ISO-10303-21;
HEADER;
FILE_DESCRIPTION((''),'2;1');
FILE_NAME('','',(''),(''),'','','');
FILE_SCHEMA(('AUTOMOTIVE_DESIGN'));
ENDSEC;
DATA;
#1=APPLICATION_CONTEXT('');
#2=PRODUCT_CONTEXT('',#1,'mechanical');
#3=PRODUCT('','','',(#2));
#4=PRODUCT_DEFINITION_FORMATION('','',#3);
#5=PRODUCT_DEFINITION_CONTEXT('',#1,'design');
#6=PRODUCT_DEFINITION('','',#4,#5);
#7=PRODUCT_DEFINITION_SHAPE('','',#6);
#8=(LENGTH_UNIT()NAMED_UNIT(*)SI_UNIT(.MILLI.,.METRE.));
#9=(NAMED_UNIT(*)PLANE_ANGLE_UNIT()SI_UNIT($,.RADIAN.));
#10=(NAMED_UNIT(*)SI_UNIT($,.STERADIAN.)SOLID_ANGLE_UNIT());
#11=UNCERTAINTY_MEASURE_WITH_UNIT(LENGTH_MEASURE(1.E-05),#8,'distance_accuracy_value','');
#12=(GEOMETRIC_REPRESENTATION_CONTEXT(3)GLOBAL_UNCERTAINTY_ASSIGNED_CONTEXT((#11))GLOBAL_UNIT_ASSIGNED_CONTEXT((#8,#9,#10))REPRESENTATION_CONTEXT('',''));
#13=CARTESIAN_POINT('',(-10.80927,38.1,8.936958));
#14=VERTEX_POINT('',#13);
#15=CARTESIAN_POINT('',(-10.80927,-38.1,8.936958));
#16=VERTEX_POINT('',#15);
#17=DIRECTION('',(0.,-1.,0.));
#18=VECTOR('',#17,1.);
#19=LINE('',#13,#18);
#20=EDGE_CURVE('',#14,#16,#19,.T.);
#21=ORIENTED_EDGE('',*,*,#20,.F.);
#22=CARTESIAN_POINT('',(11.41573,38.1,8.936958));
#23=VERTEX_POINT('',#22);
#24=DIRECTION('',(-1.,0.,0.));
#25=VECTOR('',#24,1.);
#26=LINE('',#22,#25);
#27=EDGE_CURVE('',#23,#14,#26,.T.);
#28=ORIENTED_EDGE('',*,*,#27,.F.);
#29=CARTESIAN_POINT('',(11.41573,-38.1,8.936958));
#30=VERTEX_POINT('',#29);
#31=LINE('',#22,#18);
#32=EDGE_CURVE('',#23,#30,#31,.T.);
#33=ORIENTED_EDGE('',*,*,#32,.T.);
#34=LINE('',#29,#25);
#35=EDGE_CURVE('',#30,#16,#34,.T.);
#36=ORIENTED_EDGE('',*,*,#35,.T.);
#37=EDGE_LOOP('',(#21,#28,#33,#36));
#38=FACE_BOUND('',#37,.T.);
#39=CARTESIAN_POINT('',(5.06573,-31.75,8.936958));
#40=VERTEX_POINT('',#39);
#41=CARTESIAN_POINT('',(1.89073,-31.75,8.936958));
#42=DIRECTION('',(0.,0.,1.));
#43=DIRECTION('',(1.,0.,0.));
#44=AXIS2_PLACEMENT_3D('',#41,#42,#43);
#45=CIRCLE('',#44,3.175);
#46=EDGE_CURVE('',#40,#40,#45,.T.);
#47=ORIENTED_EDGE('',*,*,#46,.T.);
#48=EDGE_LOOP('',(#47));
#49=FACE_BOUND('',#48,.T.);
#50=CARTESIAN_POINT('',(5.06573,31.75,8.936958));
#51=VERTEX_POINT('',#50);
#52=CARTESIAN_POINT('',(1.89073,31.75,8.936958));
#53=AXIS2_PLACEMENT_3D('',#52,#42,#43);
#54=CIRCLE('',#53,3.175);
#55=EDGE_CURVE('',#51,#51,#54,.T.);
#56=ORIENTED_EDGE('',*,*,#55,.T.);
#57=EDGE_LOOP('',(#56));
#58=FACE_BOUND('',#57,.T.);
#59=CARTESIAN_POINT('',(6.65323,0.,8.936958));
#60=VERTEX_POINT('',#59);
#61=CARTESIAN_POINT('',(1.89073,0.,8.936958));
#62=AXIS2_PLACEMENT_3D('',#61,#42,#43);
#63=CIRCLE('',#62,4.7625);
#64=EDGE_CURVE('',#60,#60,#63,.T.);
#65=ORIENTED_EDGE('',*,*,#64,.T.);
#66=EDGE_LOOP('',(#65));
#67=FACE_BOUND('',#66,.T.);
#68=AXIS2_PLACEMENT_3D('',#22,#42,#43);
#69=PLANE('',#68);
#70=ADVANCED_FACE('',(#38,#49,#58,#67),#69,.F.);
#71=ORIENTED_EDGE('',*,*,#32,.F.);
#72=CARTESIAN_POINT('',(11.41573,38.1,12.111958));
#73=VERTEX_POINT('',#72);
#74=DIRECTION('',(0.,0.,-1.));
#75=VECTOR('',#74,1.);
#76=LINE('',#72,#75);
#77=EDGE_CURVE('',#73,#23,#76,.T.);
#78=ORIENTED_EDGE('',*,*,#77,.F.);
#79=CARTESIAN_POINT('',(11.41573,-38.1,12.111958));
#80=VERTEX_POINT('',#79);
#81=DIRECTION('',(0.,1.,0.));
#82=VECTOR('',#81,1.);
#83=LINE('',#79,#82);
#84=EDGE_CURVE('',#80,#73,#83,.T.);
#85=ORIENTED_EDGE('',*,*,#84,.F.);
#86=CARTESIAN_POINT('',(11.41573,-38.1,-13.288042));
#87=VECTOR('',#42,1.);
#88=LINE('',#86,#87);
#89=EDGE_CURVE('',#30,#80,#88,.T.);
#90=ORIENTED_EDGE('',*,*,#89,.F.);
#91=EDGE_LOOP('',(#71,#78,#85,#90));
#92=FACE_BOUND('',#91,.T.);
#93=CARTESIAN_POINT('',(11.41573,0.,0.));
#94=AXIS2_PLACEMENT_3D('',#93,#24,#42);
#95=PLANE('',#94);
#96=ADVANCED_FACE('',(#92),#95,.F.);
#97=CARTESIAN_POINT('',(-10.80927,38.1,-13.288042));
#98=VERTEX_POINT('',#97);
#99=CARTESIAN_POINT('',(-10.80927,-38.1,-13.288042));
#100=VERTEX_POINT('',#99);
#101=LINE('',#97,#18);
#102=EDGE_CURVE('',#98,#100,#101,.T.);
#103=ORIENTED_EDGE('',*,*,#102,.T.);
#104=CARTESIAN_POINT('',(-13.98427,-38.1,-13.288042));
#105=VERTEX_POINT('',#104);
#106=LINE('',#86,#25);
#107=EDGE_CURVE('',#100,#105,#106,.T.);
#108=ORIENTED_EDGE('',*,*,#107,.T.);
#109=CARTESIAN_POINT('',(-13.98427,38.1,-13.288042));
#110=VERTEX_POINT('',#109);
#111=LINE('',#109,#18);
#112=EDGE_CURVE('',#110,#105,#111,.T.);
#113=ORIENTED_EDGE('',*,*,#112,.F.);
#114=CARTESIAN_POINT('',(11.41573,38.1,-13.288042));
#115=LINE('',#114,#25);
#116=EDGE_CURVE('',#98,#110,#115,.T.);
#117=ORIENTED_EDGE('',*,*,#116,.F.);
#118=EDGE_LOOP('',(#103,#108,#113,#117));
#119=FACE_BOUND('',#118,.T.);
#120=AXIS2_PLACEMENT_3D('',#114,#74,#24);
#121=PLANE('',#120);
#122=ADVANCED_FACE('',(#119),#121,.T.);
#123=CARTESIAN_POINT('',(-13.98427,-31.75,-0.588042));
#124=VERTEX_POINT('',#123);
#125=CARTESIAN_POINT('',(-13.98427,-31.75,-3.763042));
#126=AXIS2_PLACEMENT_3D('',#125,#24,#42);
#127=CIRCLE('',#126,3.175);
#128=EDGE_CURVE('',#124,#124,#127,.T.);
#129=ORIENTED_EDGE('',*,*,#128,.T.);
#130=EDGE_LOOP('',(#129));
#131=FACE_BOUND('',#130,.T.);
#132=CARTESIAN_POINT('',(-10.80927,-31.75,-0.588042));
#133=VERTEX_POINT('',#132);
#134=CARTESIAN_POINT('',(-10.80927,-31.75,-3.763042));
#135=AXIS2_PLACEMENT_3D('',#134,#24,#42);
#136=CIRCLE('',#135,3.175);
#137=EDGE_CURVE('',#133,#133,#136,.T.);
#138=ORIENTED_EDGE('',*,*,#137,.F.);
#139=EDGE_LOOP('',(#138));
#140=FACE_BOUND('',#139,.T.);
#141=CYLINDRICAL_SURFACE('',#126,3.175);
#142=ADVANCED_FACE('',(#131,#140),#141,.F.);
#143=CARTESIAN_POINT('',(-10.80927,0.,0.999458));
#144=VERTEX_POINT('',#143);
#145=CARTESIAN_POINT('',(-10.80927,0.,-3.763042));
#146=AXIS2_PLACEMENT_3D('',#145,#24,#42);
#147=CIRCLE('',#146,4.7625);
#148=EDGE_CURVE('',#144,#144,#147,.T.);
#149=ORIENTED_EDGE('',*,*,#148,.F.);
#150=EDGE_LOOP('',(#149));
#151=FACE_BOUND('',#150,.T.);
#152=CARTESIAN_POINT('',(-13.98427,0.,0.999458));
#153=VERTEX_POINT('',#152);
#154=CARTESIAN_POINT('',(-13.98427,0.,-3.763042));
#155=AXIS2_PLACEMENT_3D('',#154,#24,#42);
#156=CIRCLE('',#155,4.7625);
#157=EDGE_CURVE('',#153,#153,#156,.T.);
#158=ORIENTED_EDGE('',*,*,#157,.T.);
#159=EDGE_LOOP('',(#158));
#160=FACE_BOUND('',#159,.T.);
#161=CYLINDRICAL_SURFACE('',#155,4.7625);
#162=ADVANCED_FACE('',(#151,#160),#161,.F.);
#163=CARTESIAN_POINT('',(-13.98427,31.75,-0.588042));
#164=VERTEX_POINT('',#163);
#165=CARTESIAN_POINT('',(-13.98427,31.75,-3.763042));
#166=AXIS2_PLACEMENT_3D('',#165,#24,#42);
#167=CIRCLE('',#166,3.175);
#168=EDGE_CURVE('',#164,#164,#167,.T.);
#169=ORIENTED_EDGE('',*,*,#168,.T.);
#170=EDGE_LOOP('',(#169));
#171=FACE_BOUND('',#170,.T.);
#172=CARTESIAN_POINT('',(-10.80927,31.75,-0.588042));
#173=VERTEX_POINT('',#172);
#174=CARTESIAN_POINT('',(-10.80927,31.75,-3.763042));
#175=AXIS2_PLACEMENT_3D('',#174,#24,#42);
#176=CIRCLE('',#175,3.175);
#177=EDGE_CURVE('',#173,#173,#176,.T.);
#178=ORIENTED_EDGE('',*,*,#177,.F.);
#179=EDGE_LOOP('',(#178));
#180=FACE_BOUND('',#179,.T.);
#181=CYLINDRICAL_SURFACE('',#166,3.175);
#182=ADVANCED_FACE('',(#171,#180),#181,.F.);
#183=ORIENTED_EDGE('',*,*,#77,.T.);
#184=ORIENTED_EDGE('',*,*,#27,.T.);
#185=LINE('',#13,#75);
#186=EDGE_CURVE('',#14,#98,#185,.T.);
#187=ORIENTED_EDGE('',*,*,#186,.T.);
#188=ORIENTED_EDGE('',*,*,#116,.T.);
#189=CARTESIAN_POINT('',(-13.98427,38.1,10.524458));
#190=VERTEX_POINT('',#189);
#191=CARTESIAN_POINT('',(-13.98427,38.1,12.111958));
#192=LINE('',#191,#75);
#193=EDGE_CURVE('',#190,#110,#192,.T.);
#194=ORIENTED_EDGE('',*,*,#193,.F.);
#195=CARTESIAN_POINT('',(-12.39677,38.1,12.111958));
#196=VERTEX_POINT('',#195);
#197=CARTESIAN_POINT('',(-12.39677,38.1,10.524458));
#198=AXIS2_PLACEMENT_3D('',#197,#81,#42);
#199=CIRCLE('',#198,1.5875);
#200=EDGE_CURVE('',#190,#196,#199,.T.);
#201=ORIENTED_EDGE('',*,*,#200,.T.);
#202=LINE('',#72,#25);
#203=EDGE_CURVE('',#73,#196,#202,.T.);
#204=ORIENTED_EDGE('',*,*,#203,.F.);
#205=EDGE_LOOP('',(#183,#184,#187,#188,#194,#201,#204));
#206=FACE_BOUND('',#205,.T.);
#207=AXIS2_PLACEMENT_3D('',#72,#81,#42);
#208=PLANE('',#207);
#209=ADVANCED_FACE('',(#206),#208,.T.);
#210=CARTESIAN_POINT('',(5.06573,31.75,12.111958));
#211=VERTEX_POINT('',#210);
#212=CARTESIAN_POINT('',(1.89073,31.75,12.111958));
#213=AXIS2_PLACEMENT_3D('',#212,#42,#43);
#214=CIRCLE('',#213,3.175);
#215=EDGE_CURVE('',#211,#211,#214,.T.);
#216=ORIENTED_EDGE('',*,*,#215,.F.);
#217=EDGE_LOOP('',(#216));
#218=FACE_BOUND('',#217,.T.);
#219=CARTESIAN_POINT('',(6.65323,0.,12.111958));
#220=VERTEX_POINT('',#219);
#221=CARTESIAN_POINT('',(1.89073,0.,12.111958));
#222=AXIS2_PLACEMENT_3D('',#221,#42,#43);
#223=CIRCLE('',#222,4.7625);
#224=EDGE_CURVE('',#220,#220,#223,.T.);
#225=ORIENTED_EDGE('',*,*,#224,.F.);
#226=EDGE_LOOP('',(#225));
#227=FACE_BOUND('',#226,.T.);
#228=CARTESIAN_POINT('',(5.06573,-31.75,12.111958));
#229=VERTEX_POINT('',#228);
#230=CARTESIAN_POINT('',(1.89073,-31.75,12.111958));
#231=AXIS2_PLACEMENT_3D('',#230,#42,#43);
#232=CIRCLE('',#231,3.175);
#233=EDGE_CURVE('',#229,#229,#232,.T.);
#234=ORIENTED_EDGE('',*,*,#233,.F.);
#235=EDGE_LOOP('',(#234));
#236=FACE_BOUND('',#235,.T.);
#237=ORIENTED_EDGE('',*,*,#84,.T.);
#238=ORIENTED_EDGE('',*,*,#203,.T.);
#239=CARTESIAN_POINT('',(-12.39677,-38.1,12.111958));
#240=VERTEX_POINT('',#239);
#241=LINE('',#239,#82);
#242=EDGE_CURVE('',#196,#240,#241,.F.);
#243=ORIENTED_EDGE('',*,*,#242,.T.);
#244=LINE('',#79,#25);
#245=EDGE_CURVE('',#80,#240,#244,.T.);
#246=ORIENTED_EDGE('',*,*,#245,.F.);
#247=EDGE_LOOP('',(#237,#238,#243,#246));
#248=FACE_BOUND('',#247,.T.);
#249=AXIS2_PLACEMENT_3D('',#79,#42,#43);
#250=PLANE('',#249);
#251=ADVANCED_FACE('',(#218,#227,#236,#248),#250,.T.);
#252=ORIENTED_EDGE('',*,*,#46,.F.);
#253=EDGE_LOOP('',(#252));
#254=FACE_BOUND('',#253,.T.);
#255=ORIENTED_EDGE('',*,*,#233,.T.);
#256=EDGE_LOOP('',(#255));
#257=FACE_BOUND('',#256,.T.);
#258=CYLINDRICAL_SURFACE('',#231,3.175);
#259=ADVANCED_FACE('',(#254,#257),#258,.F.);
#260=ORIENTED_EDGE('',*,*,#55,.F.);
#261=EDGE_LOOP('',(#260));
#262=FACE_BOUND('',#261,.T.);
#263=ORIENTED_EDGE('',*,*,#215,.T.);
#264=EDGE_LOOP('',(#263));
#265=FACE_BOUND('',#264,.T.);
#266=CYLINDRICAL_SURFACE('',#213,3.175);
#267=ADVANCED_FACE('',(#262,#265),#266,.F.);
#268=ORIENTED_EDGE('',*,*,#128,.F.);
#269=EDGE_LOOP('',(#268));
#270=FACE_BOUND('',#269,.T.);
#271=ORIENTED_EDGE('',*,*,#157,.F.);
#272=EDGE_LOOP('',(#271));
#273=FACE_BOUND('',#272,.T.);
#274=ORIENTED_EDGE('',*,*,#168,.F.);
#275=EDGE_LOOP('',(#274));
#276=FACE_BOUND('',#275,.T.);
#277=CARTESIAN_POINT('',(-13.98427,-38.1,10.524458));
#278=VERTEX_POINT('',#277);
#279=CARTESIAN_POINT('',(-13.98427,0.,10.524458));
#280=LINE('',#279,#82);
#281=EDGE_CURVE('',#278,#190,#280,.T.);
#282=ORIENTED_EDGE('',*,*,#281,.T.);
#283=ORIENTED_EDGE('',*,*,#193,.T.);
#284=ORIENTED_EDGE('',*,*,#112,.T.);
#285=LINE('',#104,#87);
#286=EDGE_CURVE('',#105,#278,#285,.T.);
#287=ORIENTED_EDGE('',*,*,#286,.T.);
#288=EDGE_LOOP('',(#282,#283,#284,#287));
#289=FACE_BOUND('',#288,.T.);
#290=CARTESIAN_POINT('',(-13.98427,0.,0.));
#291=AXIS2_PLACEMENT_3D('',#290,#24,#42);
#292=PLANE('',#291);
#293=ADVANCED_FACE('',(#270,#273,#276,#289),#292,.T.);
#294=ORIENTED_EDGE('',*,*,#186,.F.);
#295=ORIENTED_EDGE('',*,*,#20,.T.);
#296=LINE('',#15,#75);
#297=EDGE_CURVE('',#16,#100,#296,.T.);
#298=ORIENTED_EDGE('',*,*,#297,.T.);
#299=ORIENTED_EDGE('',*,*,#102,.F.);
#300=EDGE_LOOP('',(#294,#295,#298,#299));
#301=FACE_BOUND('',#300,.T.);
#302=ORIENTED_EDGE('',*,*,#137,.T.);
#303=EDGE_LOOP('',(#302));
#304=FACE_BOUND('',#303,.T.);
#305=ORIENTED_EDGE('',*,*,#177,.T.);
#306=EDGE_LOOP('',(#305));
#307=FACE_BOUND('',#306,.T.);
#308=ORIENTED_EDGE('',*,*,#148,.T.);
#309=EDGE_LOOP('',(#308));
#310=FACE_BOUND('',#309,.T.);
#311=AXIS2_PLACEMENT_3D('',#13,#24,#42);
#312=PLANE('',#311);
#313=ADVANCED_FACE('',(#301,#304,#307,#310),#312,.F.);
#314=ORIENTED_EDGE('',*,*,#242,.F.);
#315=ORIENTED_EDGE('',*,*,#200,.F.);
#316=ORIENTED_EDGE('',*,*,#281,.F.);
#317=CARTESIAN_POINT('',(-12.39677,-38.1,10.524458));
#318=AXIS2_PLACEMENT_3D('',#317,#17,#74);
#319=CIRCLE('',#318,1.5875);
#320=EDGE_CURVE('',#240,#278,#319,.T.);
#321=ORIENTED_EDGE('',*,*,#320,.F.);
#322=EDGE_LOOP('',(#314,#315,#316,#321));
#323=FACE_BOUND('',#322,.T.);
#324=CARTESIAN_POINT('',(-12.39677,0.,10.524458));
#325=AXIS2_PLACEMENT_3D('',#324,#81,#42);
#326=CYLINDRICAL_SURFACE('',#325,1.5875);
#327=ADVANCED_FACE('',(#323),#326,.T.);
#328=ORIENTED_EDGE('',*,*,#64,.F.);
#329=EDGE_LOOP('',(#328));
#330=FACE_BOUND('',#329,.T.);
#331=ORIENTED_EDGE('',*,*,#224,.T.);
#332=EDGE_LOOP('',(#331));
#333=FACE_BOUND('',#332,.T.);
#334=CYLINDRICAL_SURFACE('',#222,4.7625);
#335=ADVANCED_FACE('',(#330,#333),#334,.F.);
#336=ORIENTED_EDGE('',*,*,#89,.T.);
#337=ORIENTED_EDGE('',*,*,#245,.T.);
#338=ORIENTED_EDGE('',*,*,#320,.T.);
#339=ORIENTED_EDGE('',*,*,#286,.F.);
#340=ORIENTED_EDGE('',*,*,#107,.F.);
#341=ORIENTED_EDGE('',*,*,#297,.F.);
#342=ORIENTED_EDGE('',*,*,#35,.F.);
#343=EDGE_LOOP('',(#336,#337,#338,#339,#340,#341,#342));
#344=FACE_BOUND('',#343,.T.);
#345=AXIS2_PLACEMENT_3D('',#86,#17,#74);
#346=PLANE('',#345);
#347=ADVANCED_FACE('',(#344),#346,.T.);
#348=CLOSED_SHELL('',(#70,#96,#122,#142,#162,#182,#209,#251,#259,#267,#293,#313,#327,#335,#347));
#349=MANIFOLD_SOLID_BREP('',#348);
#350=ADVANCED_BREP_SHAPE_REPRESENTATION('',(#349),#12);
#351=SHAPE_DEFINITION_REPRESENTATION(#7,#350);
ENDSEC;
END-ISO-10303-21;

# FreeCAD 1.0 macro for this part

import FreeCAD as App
import Part
import Sketcher

V = App.Vector
Q = App.Units.Quantity


def edges_at(feature, points):
    """Names of the edges that pass closest to the given points."""
    edges = feature.Shape.Edges
    near = lambda p: min(range(len(edges)), key=lambda i: edges[i].distToShape(Part.Vertex(*p))[0])
    return sorted({f"Edge{near(p) + 1}" for p in points})


def add_polygon(sketch, points):
    """Adds a closed chain of lines whose ends are joined by coincident constraints."""
    first, n = sketch.GeometryCount, len(points)
    for a, b in zip(points, points[1:] + points[:1]):
        sketch.addGeometry(Part.LineSegment(App.Vector(*a, 0), App.Vector(*b, 0)), False)
    for i in range(n):
        sketch.addConstraint(Sketcher.Constraint("Coincident", first + i, 2, first + (i + 1) % n, 1))

doc = App.newDocument("Part")
params = doc.addObject("Spreadsheet::Sheet", "Params")
for row, (alias, value) in enumerate([
    ("sketch1_width", "3 in"),
    ("sketch1_height", "1 in"),
    ("pad1_length", "1 in"),
    ("sketch2_width", "0.875 in"),
    ("fillet_radius", "0.0625 in"),
    ("sketch3_diameter", "0.25 in"),
    ("hole_diameter", "0.25 in"),
    ("hole_depth", "0.125 in"),
    ("sketch4_diameter", "0.25 in"),
    ("hole2_diameter", "0.25 in"),
    ("hole2_depth", "0.125 in"),
    ("sketch5_diameter", "0.375 in"),
    ("hole3_diameter", "0.375 in"),
    ("sketch6_diameter", "0.375 in"),
    ("hole4_diameter", "0.375 in"),
], start=1):
    params.set(f"A{row}", alias)
    params.set(f"B{row}", "=" + value)
    params.setAlias(f"B{row}", alias)

body = doc.addObject("PartDesign::Body", "Body")

# Sketch on YZ plane
sketch1 = doc.addObject("Sketcher::SketchObject", "Sketch")
body.addObject(sketch1)
sketch1.AttachmentSupport = (doc.YZ_Plane, [""])
sketch1.MapMode = "FlatFace"
sketch1.AttachmentOffset = App.Placement(V(0, 0, -13.98427), App.Rotation())
add_polygon(sketch1, [(38, 12), (38, -13), (-38, -13), (-38, 12)])  # lines 0-3
sketch1.addConstraint(Sketcher.Constraint("Vertical", 0))
sketch1.addConstraint(Sketcher.Constraint("Horizontal", 1))
sketch1.addConstraint(Sketcher.Constraint("Vertical", 2))
sketch1.addConstraint(Sketcher.Constraint("Horizontal", 3))
sketch1.addConstraint(Sketcher.Constraint("DistanceX", 1, 2, 1, 1, Q("3 in")))
sketch1.addConstraint(Sketcher.Constraint("DistanceY", 0, 2, 0, 1, Q("1 in")))
sketch1.addConstraint(Sketcher.Constraint("DistanceX", -1, 1, 0, 2, Q("1.5 in")))
sketch1.addConstraint(Sketcher.Constraint("DistanceY", 0, 2, -1, 1, 13.288042))
sketch1.setExpression("Constraints[8]", "Params.sketch1_width")
sketch1.setExpression("Constraints[9]", "Params.sketch1_height")
pad1 = doc.addObject("PartDesign::Pad", "Pad")
body.addObject(pad1)
pad1.Profile = sketch1
pad1.setExpression("Length", "Params.pad1_length")

# Sketch on XZ plane
sketch2 = doc.addObject("Sketcher::SketchObject", "Sketch001")
body.addObject(sketch2)
sketch2.AttachmentSupport = (doc.XZ_Plane, [""])
sketch2.MapMode = "FlatFace"
sketch2.AttachmentOffset = App.Placement(V(0, 0, 1.5 * 25.4), App.Rotation())
add_polygon(sketch2, [(-11, 9), (-11, -13), (11, -13), (11, 9)])  # lines 0-3
sketch2.addConstraint(Sketcher.Constraint("Vertical", 0))
sketch2.addConstraint(Sketcher.Constraint("Horizontal", 1))
sketch2.addConstraint(Sketcher.Constraint("Vertical", 2))
sketch2.addConstraint(Sketcher.Constraint("Horizontal", 3))
sketch2.addConstraint(Sketcher.Constraint("Equal", 3, 0))
sketch2.addConstraint(Sketcher.Constraint("DistanceX", 1, 1, 1, 2, Q("0.875 in")))
sketch2.addConstraint(Sketcher.Constraint("DistanceX", 0, 2, -1, 1, 10.80927))
sketch2.addConstraint(Sketcher.Constraint("DistanceY", 0, 2, -1, 1, 13.288042))
sketch2.setExpression("Constraints[9]", "Params.sketch2_width")
pocket1 = doc.addObject("PartDesign::Pocket", "Pocket")
body.addObject(pocket1)
pocket1.Profile = sketch2
pocket1.Type = "ThroughAll"
doc.recompute()

fillet = doc.addObject("PartDesign::Fillet", "Fillet")
body.addObject(fillet)
fillet.Base = (pocket1, edges_at(pocket1, [(-13.984, 0, 12.112)]))
fillet.setExpression("Radius", "Params.fillet_radius")

# Sketch on XY plane
sketch3 = doc.addObject("Sketcher::SketchObject", "Sketch002")
body.addObject(sketch3)
sketch3.AttachmentSupport = (doc.XY_Plane, [""])
sketch3.MapMode = "FlatFace"
sketch3.AttachmentOffset = App.Placement(V(0, 0, 12.111958), App.Rotation())
sketch3.addGeometry(Part.Circle(V(1.9, 31.8, 0), V(0, 0, 1), 3.2), False)
sketch3.addGeometry(Part.Circle(V(1.9, -31.8, 0), V(0, 0, 1), 3.2), False)
sketch3.addConstraint(Sketcher.Constraint("Equal", 0, 1))
sketch3.addConstraint(Sketcher.Constraint("Symmetric", 0, 3, 1, 3, -1))
sketch3.addConstraint(Sketcher.Constraint("Diameter", 0, Q("0.25 in")))
sketch3.addConstraint(Sketcher.Constraint("DistanceY", 1, 3, 0, 3, Q("2.5 in")))
sketch3.addConstraint(Sketcher.Constraint("DistanceX", -1, 1, 0, 3, 1.89073))
sketch3.setExpression("Constraints[2]", "Params.sketch3_diameter")
doc.recompute()
hole = doc.addObject("PartDesign::Hole", "Hole")
body.addObject(hole)
hole.Profile = sketch3
hole.ThreadType = "None"
hole.setExpression("Diameter", "Params.hole_diameter")
hole.DepthType = "Dimension"
hole.setExpression("Depth", "Params.hole_depth")
hole.DrillPoint = "Flat"

# Sketch on YZ plane
sketch4 = doc.addObject("Sketcher::SketchObject", "Sketch003")
body.addObject(sketch4)
sketch4.AttachmentSupport = (doc.YZ_Plane, [""])
sketch4.MapMode = "FlatFace"
sketch4.AttachmentOffset = App.Placement(V(0, 0, -13.98427), App.Rotation())
sketch4.addGeometry(Part.Circle(V(31.8, -3.8, 0), V(0, 0, 1), 3.2), False)
sketch4.addGeometry(Part.Circle(V(-31.8, -3.8, 0), V(0, 0, 1), 3.2), False)
sketch4.addConstraint(Sketcher.Constraint("Equal", 0, 1))
sketch4.addConstraint(Sketcher.Constraint("Symmetric", 0, 3, 1, 3, -2))
sketch4.addConstraint(Sketcher.Constraint("Diameter", 0, Q("0.25 in")))
sketch4.addConstraint(Sketcher.Constraint("DistanceX", 1, 3, 0, 3, Q("2.5 in")))
sketch4.addConstraint(Sketcher.Constraint("DistanceY", 0, 3, -1, 1, 3.763042))
sketch4.setExpression("Constraints[2]", "Params.sketch4_diameter")
doc.recompute()
hole2 = doc.addObject("PartDesign::Hole", "Hole001")
body.addObject(hole2)
hole2.Profile = sketch4
hole2.ThreadType = "None"
hole2.setExpression("Diameter", "Params.hole2_diameter")
hole2.DepthType = "Dimension"
hole2.setExpression("Depth", "Params.hole2_depth")
hole2.DrillPoint = "Flat"
hole2.Reversed = True

# Sketch on YZ plane
sketch5 = doc.addObject("Sketcher::SketchObject", "Sketch004")
body.addObject(sketch5)
sketch5.AttachmentSupport = (doc.YZ_Plane, [""])
sketch5.MapMode = "FlatFace"
sketch5.AttachmentOffset = App.Placement(V(0, 0, -13.98427), App.Rotation())
sketch5.addGeometry(Part.Circle(V(0, -3.8, 0), V(0, 0, 1), 4.8), False)
sketch5.addConstraint(Sketcher.Constraint("PointOnObject", 0, 3, -2))
sketch5.addConstraint(Sketcher.Constraint("Diameter", 0, Q("0.375 in")))
sketch5.addConstraint(Sketcher.Constraint("DistanceY", 0, 3, -1, 1, 3.763042))
sketch5.setExpression("Constraints[1]", "Params.sketch5_diameter")
doc.recompute()
hole3 = doc.addObject("PartDesign::Hole", "Hole002")
body.addObject(hole3)
hole3.Profile = sketch5
hole3.ThreadType = "None"
hole3.setExpression("Diameter", "Params.hole3_diameter")
hole3.DepthType = "ThroughAll"
hole3.Reversed = True

# Sketch on XY plane
sketch6 = doc.addObject("Sketcher::SketchObject", "Sketch005")
body.addObject(sketch6)
sketch6.AttachmentSupport = (doc.XY_Plane, [""])
sketch6.MapMode = "FlatFace"
sketch6.AttachmentOffset = App.Placement(V(0, 0, 12.111958), App.Rotation())
sketch6.addGeometry(Part.Circle(V(1.9, 0, 0), V(0, 0, 1), 4.8), False)
sketch6.addConstraint(Sketcher.Constraint("PointOnObject", 0, 3, -1))
sketch6.addConstraint(Sketcher.Constraint("Diameter", 0, Q("0.375 in")))
sketch6.addConstraint(Sketcher.Constraint("DistanceX", -1, 1, 0, 3, 1.89073))
sketch6.setExpression("Constraints[1]", "Params.sketch6_diameter")
doc.recompute()
hole4 = doc.addObject("PartDesign::Hole", "Hole003")
body.addObject(hole4)
hole4.Profile = sketch6
hole4.ThreadType = "None"
hole4.setExpression("Diameter", "Params.hole4_diameter")
hole4.DepthType = "ThroughAll"

doc.recompute()
